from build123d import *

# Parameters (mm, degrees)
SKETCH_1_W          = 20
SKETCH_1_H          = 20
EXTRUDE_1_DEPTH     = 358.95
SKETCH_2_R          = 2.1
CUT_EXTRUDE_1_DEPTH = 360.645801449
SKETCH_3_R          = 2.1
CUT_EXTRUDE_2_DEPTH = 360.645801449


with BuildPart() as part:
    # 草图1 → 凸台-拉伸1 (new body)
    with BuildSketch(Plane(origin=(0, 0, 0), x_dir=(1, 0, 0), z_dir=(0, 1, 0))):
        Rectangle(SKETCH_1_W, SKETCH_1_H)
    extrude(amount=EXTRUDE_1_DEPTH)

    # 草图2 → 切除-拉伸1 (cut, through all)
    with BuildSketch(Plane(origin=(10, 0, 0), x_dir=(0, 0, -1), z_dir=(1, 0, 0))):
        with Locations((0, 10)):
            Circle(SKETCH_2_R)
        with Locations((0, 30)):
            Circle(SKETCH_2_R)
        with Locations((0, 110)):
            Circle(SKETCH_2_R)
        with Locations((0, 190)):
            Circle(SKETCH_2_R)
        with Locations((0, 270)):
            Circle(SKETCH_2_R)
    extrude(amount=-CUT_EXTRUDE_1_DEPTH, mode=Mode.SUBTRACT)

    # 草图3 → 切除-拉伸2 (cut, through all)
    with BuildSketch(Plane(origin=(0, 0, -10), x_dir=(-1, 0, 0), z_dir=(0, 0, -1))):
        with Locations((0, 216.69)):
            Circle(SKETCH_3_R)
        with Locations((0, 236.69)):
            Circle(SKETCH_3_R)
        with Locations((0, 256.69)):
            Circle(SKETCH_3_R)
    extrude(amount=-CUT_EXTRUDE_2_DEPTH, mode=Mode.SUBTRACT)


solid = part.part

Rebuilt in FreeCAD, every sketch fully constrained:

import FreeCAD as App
import Part
import Sketcher

doc = App.newDocument("Part")
body = doc.addObject("PartDesign::Body", "Body")

sketch1 = body.newObject("Sketcher::SketchObject", "Sketch")
sketch1.AttachmentSupport = (doc.getObject("XZ_Plane"), [""])
sketch1.MapMode = "FlatFace"
sketch1.addGeometry(Part.LineSegment(App.Vector(-10, -10, 0), App.Vector(-10, 10, 0)), False)
sketch1.addGeometry(Part.LineSegment(App.Vector(-10, 10, 0), App.Vector(10, 10, 0)), False)
sketch1.addGeometry(Part.LineSegment(App.Vector(10, 10, 0), App.Vector(10, -10, 0)), False)
sketch1.addGeometry(Part.LineSegment(App.Vector(10, -10, 0), App.Vector(-10, -10, 0)), False)
sketch1.addConstraint(Sketcher.Constraint("Coincident", 0, 2, 1, 1))
sketch1.addConstraint(Sketcher.Constraint("Coincident", 1, 2, 2, 1))
sketch1.addConstraint(Sketcher.Constraint("Coincident", 2, 2, 3, 1))
sketch1.addConstraint(Sketcher.Constraint("Coincident", 3, 2, 0, 1))
sketch1.addConstraint(Sketcher.Constraint("Vertical", 0))
sketch1.addConstraint(Sketcher.Constraint("Horizontal", 1))
sketch1.addConstraint(Sketcher.Constraint("Vertical", 2))
sketch1.addConstraint(Sketcher.Constraint("Horizontal", 3))
sketch1.addConstraint(Sketcher.Constraint("Symmetric", 0, 2, 2, 2, -1, 1))
sketch1.addConstraint(Sketcher.Constraint("Equal", 3, 0))
sketch1.addConstraint(Sketcher.Constraint("DistanceX", 1, 1, 1, 2, 20.0))
pad1 = body.newObject("PartDesign::Pad", "Pad")
pad1.Profile = sketch1
pad1.Length = 358.95
pad1.Reversed = True

sketch2 = body.newObject("Sketcher::SketchObject", "Sketch001")
sketch2.AttachmentSupport = (doc.getObject("YZ_Plane"), [""])
sketch2.MapMode = "FlatFace"
sketch2.AttachmentOffset = App.Placement(App.Vector(0, 0, 10), App.Rotation())
sketch2.addGeometry(Part.Circle(App.Vector(10, 0, 0), App.Vector(0, 0, 1), 2.1), False)
sketch2.addGeometry(Part.Circle(App.Vector(30, 0, 0), App.Vector(0, 0, 1), 2.1), False)
sketch2.addGeometry(Part.Circle(App.Vector(110, 0, 0), App.Vector(0, 0, 1), 2.1), False)
sketch2.addGeometry(Part.Circle(App.Vector(190, 0, 0), App.Vector(0, 0, 1), 2.1), False)
sketch2.addGeometry(Part.Circle(App.Vector(270, 0, 0), App.Vector(0, 0, 1), 2.1), False)
sketch2.addConstraint(Sketcher.Constraint("Equal", 0, 1))
sketch2.addConstraint(Sketcher.Constraint("Equal", 1, 2))
sketch2.addConstraint(Sketcher.Constraint("Equal", 2, 3))
sketch2.addConstraint(Sketcher.Constraint("Equal", 3, 4))
sketch2.addConstraint(Sketcher.Constraint("PointOnObject", 0, 3, -1))
sketch2.addConstraint(Sketcher.Constraint("PointOnObject", 1, 3, -1))
sketch2.addConstraint(Sketcher.Constraint("PointOnObject", 2, 3, -1))
sketch2.addConstraint(Sketcher.Constraint("PointOnObject", 3, 3, -1))
sketch2.addConstraint(Sketcher.Constraint("PointOnObject", 4, 3, -1))
sketch2.addConstraint(Sketcher.Constraint("Diameter", 0, 4.2))
sketch2.addConstraint(Sketcher.Constraint("DistanceX", -1, 1, 0, 3, 10.0))
sketch2.addConstraint(Sketcher.Constraint("DistanceX", -1, 1, 1, 3, 30.0))
sketch2.addConstraint(Sketcher.Constraint("DistanceX", -1, 1, 2, 3, 110.0))
sketch2.addConstraint(Sketcher.Constraint("DistanceX", -1, 1, 3, 3, 190.0))
sketch2.addConstraint(Sketcher.Constraint("DistanceX", -1, 1, 4, 3, 270.0))
pocket1 = body.newObject("PartDesign::Pocket", "Pocket")
pocket1.Profile = sketch2
pocket1.Type = "ThroughAll"

sketch3 = body.newObject("Sketcher::SketchObject", "Sketch002")
sketch3.AttachmentSupport = (doc.getObject("XY_Plane"), [""])
sketch3.MapMode = "FlatFace"
sketch3.AttachmentOffset = App.Placement(App.Vector(0, 0, -10), App.Rotation())
sketch3.addGeometry(Part.Circle(App.Vector(0, 216.69, 0), App.Vector(0, 0, 1), 2.1), False)
sketch3.addGeometry(Part.Circle(App.Vector(0, 236.69, 0), App.Vector(0, 0, 1), 2.1), False)
sketch3.addGeometry(Part.Circle(App.Vector(0, 256.69, 0), App.Vector(0, 0, 1), 2.1), False)
sketch3.addConstraint(Sketcher.Constraint("Equal", 0, 1))
sketch3.addConstraint(Sketcher.Constraint("Equal", 1, 2))
sketch3.addConstraint(Sketcher.Constraint("PointOnObject", 0, 3, -2))
sketch3.addConstraint(Sketcher.Constraint("PointOnObject", 1, 3, -2))
sketch3.addConstraint(Sketcher.Constraint("PointOnObject", 2, 3, -2))
sketch3.addConstraint(Sketcher.Constraint("Diameter", 0, 4.2))
sketch3.addConstraint(Sketcher.Constraint("DistanceY", 0, 3, 1, 3, 20.0))
sketch3.addConstraint(Sketcher.Constraint("DistanceY", 1, 3, 2, 3, 20.0))
sketch3.addConstraint(Sketcher.Constraint("DistanceY", -1, 1, 0, 3, 216.69))
pocket2 = body.newObject("PartDesign::Pocket", "Pocket001")
pocket2.Profile = sketch3
pocket2.Type = "ThroughAll"
pocket2.Reversed = True

doc.recompute()
